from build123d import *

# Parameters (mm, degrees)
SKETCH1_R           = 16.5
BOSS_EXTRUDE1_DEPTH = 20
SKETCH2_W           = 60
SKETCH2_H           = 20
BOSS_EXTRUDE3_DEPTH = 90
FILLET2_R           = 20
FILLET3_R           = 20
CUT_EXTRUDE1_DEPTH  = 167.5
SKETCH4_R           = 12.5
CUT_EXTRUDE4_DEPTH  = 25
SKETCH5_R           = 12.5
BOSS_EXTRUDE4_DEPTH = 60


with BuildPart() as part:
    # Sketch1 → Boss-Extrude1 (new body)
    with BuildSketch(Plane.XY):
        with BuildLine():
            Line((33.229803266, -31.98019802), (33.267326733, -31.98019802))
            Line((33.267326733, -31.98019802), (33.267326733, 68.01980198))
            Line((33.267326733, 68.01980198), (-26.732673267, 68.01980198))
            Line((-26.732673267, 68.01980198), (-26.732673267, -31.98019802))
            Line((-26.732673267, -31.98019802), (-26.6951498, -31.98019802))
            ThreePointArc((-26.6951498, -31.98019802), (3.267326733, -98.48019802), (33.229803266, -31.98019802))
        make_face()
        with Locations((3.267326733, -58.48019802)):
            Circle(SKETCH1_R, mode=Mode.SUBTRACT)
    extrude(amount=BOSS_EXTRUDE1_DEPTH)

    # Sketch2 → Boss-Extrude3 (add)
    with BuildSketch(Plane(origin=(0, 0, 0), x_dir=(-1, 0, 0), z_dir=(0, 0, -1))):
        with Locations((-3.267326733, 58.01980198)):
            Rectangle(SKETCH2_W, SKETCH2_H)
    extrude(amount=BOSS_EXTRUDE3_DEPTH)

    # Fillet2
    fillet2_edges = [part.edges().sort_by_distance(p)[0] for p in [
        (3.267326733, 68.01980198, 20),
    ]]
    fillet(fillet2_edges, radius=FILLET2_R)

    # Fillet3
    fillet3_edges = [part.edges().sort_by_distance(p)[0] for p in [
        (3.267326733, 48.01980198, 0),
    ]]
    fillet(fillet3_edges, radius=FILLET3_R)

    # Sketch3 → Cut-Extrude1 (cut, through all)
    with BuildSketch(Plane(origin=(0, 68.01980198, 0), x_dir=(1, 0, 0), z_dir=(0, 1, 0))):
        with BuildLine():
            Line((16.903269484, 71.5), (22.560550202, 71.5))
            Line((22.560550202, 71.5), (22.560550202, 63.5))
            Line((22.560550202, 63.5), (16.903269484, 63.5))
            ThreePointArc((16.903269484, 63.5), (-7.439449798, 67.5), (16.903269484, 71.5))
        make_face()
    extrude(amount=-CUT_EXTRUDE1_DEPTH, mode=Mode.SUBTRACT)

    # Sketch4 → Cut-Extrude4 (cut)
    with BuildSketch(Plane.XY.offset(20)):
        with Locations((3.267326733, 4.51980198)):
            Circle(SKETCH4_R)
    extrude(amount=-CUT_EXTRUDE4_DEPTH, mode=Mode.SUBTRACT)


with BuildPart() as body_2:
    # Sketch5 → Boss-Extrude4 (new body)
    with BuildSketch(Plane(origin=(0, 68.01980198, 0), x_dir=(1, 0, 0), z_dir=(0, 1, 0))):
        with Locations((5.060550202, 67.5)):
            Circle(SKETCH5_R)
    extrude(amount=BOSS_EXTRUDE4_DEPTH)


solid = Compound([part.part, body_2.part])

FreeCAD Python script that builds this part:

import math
import FreeCAD as App
import Part
import Sketcher

V = App.Vector


def edges_at(feature, points):
    """Names of the edges that pass closest to the given points."""
    edges = feature.Shape.Edges
    near = lambda p: min(range(len(edges)), key=lambda i: edges[i].distToShape(Part.Vertex(*p))[0])
    return sorted({f"Edge{near(p) + 1}" for p in points})

doc = App.newDocument("Part")
params = doc.addObject("Spreadsheet::Sheet", "Params")
for row, (alias, value) in enumerate([
    ("sketch1_diameter", "33 mm"),
    ("sketch1_radius", "40 mm"),
    ("sketch1_width", "60 mm"),
    ("sketch1_height", "100 mm"),
    ("pad1_length", "20 mm"),
    ("sketch2_width", "60 mm"),
    ("sketch2_height", "20 mm"),
    ("pad2_length", "90 mm"),
    ("fillet_radius", "20 mm"),
    ("fillet2_radius", "20 mm"),
    ("sketch3_radius", "12.5 mm"),
    ("sketch3_height", "8 mm"),
    ("sketch4_diameter", "25 mm"),
    ("pocket2_length", "25 mm"),
    ("sketch5_diameter", "25 mm"),
    ("pad3_length", "60 mm"),
], start=1):
    params.set(f"A{row}", alias)
    params.set(f"B{row}", "=" + value)
    params.setAlias(f"B{row}", alias)

body = doc.addObject("PartDesign::Body", "Body")

sketch1 = doc.addObject("Sketcher::SketchObject", "Sketch")
body.addObject(sketch1)
sketch1.AttachmentSupport = (doc.XY_Plane, [""])
sketch1.MapMode = "FlatFace"
sketch1.addGeometry([
    Part.LineSegment(V(33.23, -31.98, 0), V(33.267, -31.98, 0)),
    Part.LineSegment(V(33.267, -31.98, 0), V(33.267, 68.02, 0)),
    Part.LineSegment(V(33.267, 68.02, 0), V(-26.733, 68.02, 0)),
    Part.LineSegment(V(-26.733, 68.02, 0), V(-26.733, -31.98, 0)),
    Part.LineSegment(V(-26.733, -31.98, 0), V(-26.695, -31.98, 0)),
    Part.ArcOfCircle(Part.Circle(V(3.267, -58.48, 0), V(0, 0, 1), 40), math.radians(139), math.radians(401)),
    Part.Circle(V(3.267, -58.48, 0), V(0, 0, 1), 16.5),
], False)
sketch1.addConstraint([
    Sketcher.Constraint("Coincident", 0, 2, 1, 1),
    Sketcher.Constraint("Coincident", 1, 2, 2, 1),
    Sketcher.Constraint("Coincident", 2, 2, 3, 1),
    Sketcher.Constraint("Coincident", 3, 2, 4, 1),
    Sketcher.Constraint("Coincident", 4, 2, 5, 1),
    Sketcher.Constraint("Coincident", 5, 2, 0, 1),
    Sketcher.Constraint("Horizontal", 0),
    Sketcher.Constraint("Vertical", 1),
    Sketcher.Constraint("Horizontal", 2),
    Sketcher.Constraint("Vertical", 3),
    Sketcher.Constraint("Horizontal", 4),
    Sketcher.Constraint("Coincident", 6, 3, 5, 3),
    Sketcher.Constraint("Horizontal", 0, 2, 3, 2),
    Sketcher.Constraint("Equal", 0, 4),
    Sketcher.Constraint("Diameter", 6, 33.0),
    Sketcher.Constraint("Radius", 5, 40.0),
    Sketcher.Constraint("DistanceX", 2, 2, 2, 1, 60.0),
    Sketcher.Constraint("DistanceY", 1, 1, 1, 2, 100.0),
    Sketcher.Constraint("DistanceY", 5, 3, 0, 2, 26.5),
    Sketcher.Constraint("DistanceY", 5, 3, -1, 1, 58.480198),
    Sketcher.Constraint("DistanceX", 4, 2, -1, 1, 26.69515),
])
sketch1.setExpression("Constraints[14]", "Params.sketch1_diameter")
sketch1.setExpression("Constraints[15]", "Params.sketch1_radius")
sketch1.setExpression("Constraints[16]", "Params.sketch1_width")
sketch1.setExpression("Constraints[17]", "Params.sketch1_height")
pad1 = doc.addObject("PartDesign::Pad", "Pad")
body.addObject(pad1)
pad1.Profile = sketch1
pad1.setExpression("Length", "Params.pad1_length")

sketch2 = doc.addObject("Sketcher::SketchObject", "Sketch001")
body.addObject(sketch2)
sketch2.AttachmentSupport = (doc.XY_Plane, [""])
sketch2.MapMode = "FlatFace"
sketch2.addGeometry([
    Part.LineSegment(V(33, 68, 0), V(33, 48, 0)),
    Part.LineSegment(V(33, 48, 0), V(-27, 48, 0)),
    Part.LineSegment(V(-27, 48, 0), V(-27, 68, 0)),
    Part.LineSegment(V(-27, 68, 0), V(33, 68, 0)),
], False)
sketch2.addConstraint([
    Sketcher.Constraint("Coincident", 0, 2, 1, 1),
    Sketcher.Constraint("Coincident", 1, 2, 2, 1),
    Sketcher.Constraint("Coincident", 2, 2, 3, 1),
    Sketcher.Constraint("Coincident", 3, 2, 0, 1),
    Sketcher.Constraint("Vertical", 0),
    Sketcher.Constraint("Horizontal", 1),
    Sketcher.Constraint("Vertical", 2),
    Sketcher.Constraint("Horizontal", 3),
    Sketcher.Constraint("DistanceX", 1, 2, 1, 1, 60.0),
    Sketcher.Constraint("DistanceY", 0, 2, 0, 1, 20.0),
    Sketcher.Constraint("DistanceY", -1, 1, 0, 2, 48.019802),
    Sketcher.Constraint("DistanceX", -1, 1, 0, 2, 33.267327),
])
sketch2.setExpression("Constraints[8]", "Params.sketch2_width")
sketch2.setExpression("Constraints[9]", "Params.sketch2_height")
pad2 = doc.addObject("PartDesign::Pad", "Pad001")
body.addObject(pad2)
pad2.Profile = sketch2
pad2.setExpression("Length", "Params.pad2_length")
pad2.Reversed = True
doc.recompute()

fillet = doc.addObject("PartDesign::Fillet", "Fillet")
body.addObject(fillet)
fillet.Base = (pad2, edges_at(pad2, [(3.267, 68.02, 20)]))
fillet.setExpression("Radius", "Params.fillet_radius")
doc.recompute()

fillet2 = doc.addObject("PartDesign::Fillet", "Fillet001")
body.addObject(fillet2)
fillet2.Base = (fillet, edges_at(fillet, [(3.267, 48.02, 0)]))
fillet2.setExpression("Radius", "Params.fillet2_radius")

sketch3 = doc.addObject("Sketcher::SketchObject", "Sketch002")
body.addObject(sketch3)
sketch3.AttachmentSupport = (doc.XZ_Plane, [""])
sketch3.MapMode = "FlatFace"
sketch3.AttachmentOffset = App.Placement(V(0, 0, -68.019802), App.Rotation())
sketch3.addGeometry([
    Part.LineSegment(V(23, -72, 0), V(17, -72, 0)),
    Part.ArcOfCircle(Part.Circle(V(5, -68, 0), V(0, 0, 1), 12), math.radians(19), math.radians(341)),
    Part.LineSegment(V(17, -64, 0), V(23, -64, 0)),
    Part.LineSegment(V(23, -64, 0), V(23, -72, 0)),
], False)
sketch3.addConstraint([
    Sketcher.Constraint("Coincident", 0, 2, 1, 2),
    Sketcher.Constraint("Coincident", 1, 1, 2, 1),
    Sketcher.Constraint("Coincident", 2, 2, 3, 1),
    Sketcher.Constraint("Coincident", 3, 2, 0, 1),
    Sketcher.Constraint("Horizontal", 0),
    Sketcher.Constraint("Horizontal", 2),
    Sketcher.Constraint("Vertical", 3),
    Sketcher.Constraint("Vertical", 0, 2, 1, 1),
    Sketcher.Constraint("Radius", 1, 12.5),
    Sketcher.Constraint("DistanceY", 3, 2, 3, 1, 8.0),
    Sketcher.Constraint("DistanceY", 1, 3, -1, 1, 67.5),
    Sketcher.Constraint("DistanceX", 1, 3, 2, 2, 17.5),
    Sketcher.Constraint("DistanceX", -1, 1, 1, 3, 5.06055),
])
sketch3.setExpression("Constraints[8]", "Params.sketch3_radius")
sketch3.setExpression("Constraints[9]", "Params.sketch3_height")
pocket1 = doc.addObject("PartDesign::Pocket", "Pocket")
body.addObject(pocket1)
pocket1.Profile = sketch3
pocket1.Type = "ThroughAll"
pocket1.Reversed = True

sketch4 = doc.addObject("Sketcher::SketchObject", "Sketch003")
body.addObject(sketch4)
sketch4.AttachmentSupport = (doc.XY_Plane, [""])
sketch4.MapMode = "FlatFace"
sketch4.AttachmentOffset = App.Placement(V(0, 0, 20), App.Rotation())
sketch4.addGeometry(Part.Circle(V(3, 5, 0), V(0, 0, 1), 12), False)
sketch4.addConstraint([
    Sketcher.Constraint("Diameter", 0, 25.0),
    Sketcher.Constraint("DistanceY", -1, 1, 0, 3, 4.519802),
    Sketcher.Constraint("DistanceX", -1, 1, 0, 3, 3.267327),
])
sketch4.setExpression("Constraints[0]", "Params.sketch4_diameter")
pocket2 = doc.addObject("PartDesign::Pocket", "Pocket001")
body.addObject(pocket2)
pocket2.Profile = sketch4
pocket2.setExpression("Length", "Params.pocket2_length")
body2 = doc.addObject("PartDesign::Body", "Body001")

sketch5 = doc.addObject("Sketcher::SketchObject", "Sketch004")
body2.addObject(sketch5)
sketch5.AttachmentSupport = (doc.getObject("XZ_Plane001"), [""])
sketch5.MapMode = "FlatFace"
sketch5.AttachmentOffset = App.Placement(V(0, 0, -68.019802), App.Rotation())
sketch5.addGeometry(Part.Circle(V(5, -68, 0), V(0, 0, 1), 12), False)
sketch5.addConstraint([
    Sketcher.Constraint("Diameter", 0, 25.0),
    Sketcher.Constraint("DistanceY", 0, 3, -1, 1, 67.5),
    Sketcher.Constraint("DistanceX", -1, 1, 0, 3, 5.06055),
])
sketch5.setExpression("Constraints[0]", "Params.sketch5_diameter")
pad3 = doc.addObject("PartDesign::Pad", "Pad002")
body2.addObject(pad3)
pad3.Profile = sketch5
pad3.setExpression("Length", "Params.pad3_length")
pad3.Reversed = True

doc.recompute()
